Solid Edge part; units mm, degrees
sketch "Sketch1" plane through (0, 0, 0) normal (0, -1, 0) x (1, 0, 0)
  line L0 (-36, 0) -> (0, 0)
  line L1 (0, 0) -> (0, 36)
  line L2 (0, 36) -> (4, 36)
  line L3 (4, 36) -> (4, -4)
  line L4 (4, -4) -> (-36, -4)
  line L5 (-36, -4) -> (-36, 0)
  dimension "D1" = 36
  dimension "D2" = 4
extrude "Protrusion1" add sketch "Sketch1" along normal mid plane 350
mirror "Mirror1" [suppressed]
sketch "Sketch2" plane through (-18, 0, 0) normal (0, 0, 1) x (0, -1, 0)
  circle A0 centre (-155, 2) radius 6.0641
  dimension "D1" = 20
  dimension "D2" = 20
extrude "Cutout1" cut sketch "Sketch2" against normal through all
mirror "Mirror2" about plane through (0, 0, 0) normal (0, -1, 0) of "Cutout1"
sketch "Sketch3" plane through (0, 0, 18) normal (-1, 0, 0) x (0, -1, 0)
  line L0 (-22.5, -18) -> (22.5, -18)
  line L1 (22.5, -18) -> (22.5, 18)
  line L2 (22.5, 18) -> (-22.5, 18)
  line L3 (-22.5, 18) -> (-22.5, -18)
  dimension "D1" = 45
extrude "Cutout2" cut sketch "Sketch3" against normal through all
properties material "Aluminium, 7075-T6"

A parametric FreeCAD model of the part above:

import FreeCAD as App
import Part
import Sketcher


def add_polygon(sketch, points):
    """Adds a closed chain of lines whose ends are joined by coincident constraints."""
    first, n = sketch.GeometryCount, len(points)
    for a, b in zip(points, points[1:] + points[:1]):
        sketch.addGeometry(Part.LineSegment(App.Vector(*a, 0), App.Vector(*b, 0)), False)
    for i in range(n):
        sketch.addConstraint(Sketcher.Constraint("Coincident", first + i, 2, first + (i + 1) % n, 1))

doc = App.newDocument("Part")
params = doc.addObject("Spreadsheet::Sheet", "Params")
for row, (alias, value) in enumerate([
    ("sketch1_width", "36 mm"),
    ("sketch1_width2", "40 mm"),
    ("pad1_length", "350 mm"),
    ("sketch3_height", "36 mm"),
], start=1):
    params.set(f"A{row}", alias)
    params.set(f"B{row}", "=" + value)
    params.setAlias(f"B{row}", alias)

body = doc.addObject("PartDesign::Body", "Body")

sketch1 = body.newObject("Sketcher::SketchObject", "Sketch")
sketch1.AttachmentSupport = (doc.getObject("XZ_Plane"), [""])
sketch1.MapMode = "FlatFace"
add_polygon(sketch1, [(0, 0), (-36, 0), (-36, -4), (4, -4), (4, 36), (0, 36)])
sketch1.addConstraint([
    Sketcher.Constraint("Horizontal", 0),
    Sketcher.Constraint("Vertical", 1),
    Sketcher.Constraint("Horizontal", 2),
    Sketcher.Constraint("Vertical", 3),
    Sketcher.Constraint("Horizontal", 4),
    Sketcher.Constraint("Vertical", 5),
    Sketcher.Constraint("Coincident", 5, 2, -1, 1),
    Sketcher.Constraint("Equal", 4, 1),
    Sketcher.Constraint("Equal", 2, 3),
    Sketcher.Constraint("DistanceX", 0, 2, 0, 1, 36.0),
    Sketcher.Constraint("DistanceX", 2, 1, 2, 2, 40.0),
])
sketch1.setExpression("Constraints[15]", "Params.sketch1_width")
sketch1.setExpression("Constraints[16]", "Params.sketch1_width2")
pad1 = body.newObject("PartDesign::Pad", "Pad")
pad1.Profile = sketch1
pad1.setExpression("Length", "Params.pad1_length")
pad1.Midplane = True

sketch2 = body.newObject("Sketcher::SketchObject", "Sketch001")
sketch2.AttachmentSupport = (doc.getObject("XY_Plane"), [""])
sketch2.MapMode = "FlatFace"
sketch2.addGeometry(Part.Circle(App.Vector(-16, 155, 0), App.Vector(0, 0, 1), 6), False)
sketch2.addConstraint([
    Sketcher.Constraint("DistanceY", -1, 1, 0, 3, 155.0),
    Sketcher.Constraint("DistanceX", 0, 3, -1, 1, 16.0),
    Sketcher.Constraint("Diameter", 0, 12.1282),
])
pocket1 = body.newObject("PartDesign::Pocket", "Pocket")
pocket1.Profile = sketch2
pocket1.Type = "ThroughAll"
doc.recompute()

mirrored = body.newObject("PartDesign::Mirrored", "Mirrored")
mirrored.Originals = [pocket1]
mirrored.MirrorPlane = (doc.getObject("XZ_Plane"), [""])
body.Tip = mirrored

sketch3 = body.newObject("Sketcher::SketchObject", "Sketch002")
sketch3.AttachmentSupport = (doc.getObject("YZ_Plane"), [""])
sketch3.MapMode = "FlatFace"
add_polygon(sketch3, [(22, 36), (22, 0), (-22, 0), (-22, 36)])
sketch3.addConstraint([
    Sketcher.Constraint("Vertical", 0),
    Sketcher.Constraint("Horizontal", 1),
    Sketcher.Constraint("Vertical", 2),
    Sketcher.Constraint("Horizontal", 3),
    Sketcher.Constraint("Symmetric", 0, 2, 1, 2, -1, 1),
    Sketcher.Constraint("DistanceX", -1, 1, 0, 2, 22.5),
    Sketcher.Constraint("DistanceY", 0, 2, 0, 1, 36.0),
])
sketch3.setExpression("Constraints[10]", "Params.sketch3_height")
pocket2 = body.newObject("PartDesign::Pocket", "Pocket001")
pocket2.Profile = sketch3
pocket2.Type = "ThroughAll"
pocket2.Reversed = True

doc.recompute()
